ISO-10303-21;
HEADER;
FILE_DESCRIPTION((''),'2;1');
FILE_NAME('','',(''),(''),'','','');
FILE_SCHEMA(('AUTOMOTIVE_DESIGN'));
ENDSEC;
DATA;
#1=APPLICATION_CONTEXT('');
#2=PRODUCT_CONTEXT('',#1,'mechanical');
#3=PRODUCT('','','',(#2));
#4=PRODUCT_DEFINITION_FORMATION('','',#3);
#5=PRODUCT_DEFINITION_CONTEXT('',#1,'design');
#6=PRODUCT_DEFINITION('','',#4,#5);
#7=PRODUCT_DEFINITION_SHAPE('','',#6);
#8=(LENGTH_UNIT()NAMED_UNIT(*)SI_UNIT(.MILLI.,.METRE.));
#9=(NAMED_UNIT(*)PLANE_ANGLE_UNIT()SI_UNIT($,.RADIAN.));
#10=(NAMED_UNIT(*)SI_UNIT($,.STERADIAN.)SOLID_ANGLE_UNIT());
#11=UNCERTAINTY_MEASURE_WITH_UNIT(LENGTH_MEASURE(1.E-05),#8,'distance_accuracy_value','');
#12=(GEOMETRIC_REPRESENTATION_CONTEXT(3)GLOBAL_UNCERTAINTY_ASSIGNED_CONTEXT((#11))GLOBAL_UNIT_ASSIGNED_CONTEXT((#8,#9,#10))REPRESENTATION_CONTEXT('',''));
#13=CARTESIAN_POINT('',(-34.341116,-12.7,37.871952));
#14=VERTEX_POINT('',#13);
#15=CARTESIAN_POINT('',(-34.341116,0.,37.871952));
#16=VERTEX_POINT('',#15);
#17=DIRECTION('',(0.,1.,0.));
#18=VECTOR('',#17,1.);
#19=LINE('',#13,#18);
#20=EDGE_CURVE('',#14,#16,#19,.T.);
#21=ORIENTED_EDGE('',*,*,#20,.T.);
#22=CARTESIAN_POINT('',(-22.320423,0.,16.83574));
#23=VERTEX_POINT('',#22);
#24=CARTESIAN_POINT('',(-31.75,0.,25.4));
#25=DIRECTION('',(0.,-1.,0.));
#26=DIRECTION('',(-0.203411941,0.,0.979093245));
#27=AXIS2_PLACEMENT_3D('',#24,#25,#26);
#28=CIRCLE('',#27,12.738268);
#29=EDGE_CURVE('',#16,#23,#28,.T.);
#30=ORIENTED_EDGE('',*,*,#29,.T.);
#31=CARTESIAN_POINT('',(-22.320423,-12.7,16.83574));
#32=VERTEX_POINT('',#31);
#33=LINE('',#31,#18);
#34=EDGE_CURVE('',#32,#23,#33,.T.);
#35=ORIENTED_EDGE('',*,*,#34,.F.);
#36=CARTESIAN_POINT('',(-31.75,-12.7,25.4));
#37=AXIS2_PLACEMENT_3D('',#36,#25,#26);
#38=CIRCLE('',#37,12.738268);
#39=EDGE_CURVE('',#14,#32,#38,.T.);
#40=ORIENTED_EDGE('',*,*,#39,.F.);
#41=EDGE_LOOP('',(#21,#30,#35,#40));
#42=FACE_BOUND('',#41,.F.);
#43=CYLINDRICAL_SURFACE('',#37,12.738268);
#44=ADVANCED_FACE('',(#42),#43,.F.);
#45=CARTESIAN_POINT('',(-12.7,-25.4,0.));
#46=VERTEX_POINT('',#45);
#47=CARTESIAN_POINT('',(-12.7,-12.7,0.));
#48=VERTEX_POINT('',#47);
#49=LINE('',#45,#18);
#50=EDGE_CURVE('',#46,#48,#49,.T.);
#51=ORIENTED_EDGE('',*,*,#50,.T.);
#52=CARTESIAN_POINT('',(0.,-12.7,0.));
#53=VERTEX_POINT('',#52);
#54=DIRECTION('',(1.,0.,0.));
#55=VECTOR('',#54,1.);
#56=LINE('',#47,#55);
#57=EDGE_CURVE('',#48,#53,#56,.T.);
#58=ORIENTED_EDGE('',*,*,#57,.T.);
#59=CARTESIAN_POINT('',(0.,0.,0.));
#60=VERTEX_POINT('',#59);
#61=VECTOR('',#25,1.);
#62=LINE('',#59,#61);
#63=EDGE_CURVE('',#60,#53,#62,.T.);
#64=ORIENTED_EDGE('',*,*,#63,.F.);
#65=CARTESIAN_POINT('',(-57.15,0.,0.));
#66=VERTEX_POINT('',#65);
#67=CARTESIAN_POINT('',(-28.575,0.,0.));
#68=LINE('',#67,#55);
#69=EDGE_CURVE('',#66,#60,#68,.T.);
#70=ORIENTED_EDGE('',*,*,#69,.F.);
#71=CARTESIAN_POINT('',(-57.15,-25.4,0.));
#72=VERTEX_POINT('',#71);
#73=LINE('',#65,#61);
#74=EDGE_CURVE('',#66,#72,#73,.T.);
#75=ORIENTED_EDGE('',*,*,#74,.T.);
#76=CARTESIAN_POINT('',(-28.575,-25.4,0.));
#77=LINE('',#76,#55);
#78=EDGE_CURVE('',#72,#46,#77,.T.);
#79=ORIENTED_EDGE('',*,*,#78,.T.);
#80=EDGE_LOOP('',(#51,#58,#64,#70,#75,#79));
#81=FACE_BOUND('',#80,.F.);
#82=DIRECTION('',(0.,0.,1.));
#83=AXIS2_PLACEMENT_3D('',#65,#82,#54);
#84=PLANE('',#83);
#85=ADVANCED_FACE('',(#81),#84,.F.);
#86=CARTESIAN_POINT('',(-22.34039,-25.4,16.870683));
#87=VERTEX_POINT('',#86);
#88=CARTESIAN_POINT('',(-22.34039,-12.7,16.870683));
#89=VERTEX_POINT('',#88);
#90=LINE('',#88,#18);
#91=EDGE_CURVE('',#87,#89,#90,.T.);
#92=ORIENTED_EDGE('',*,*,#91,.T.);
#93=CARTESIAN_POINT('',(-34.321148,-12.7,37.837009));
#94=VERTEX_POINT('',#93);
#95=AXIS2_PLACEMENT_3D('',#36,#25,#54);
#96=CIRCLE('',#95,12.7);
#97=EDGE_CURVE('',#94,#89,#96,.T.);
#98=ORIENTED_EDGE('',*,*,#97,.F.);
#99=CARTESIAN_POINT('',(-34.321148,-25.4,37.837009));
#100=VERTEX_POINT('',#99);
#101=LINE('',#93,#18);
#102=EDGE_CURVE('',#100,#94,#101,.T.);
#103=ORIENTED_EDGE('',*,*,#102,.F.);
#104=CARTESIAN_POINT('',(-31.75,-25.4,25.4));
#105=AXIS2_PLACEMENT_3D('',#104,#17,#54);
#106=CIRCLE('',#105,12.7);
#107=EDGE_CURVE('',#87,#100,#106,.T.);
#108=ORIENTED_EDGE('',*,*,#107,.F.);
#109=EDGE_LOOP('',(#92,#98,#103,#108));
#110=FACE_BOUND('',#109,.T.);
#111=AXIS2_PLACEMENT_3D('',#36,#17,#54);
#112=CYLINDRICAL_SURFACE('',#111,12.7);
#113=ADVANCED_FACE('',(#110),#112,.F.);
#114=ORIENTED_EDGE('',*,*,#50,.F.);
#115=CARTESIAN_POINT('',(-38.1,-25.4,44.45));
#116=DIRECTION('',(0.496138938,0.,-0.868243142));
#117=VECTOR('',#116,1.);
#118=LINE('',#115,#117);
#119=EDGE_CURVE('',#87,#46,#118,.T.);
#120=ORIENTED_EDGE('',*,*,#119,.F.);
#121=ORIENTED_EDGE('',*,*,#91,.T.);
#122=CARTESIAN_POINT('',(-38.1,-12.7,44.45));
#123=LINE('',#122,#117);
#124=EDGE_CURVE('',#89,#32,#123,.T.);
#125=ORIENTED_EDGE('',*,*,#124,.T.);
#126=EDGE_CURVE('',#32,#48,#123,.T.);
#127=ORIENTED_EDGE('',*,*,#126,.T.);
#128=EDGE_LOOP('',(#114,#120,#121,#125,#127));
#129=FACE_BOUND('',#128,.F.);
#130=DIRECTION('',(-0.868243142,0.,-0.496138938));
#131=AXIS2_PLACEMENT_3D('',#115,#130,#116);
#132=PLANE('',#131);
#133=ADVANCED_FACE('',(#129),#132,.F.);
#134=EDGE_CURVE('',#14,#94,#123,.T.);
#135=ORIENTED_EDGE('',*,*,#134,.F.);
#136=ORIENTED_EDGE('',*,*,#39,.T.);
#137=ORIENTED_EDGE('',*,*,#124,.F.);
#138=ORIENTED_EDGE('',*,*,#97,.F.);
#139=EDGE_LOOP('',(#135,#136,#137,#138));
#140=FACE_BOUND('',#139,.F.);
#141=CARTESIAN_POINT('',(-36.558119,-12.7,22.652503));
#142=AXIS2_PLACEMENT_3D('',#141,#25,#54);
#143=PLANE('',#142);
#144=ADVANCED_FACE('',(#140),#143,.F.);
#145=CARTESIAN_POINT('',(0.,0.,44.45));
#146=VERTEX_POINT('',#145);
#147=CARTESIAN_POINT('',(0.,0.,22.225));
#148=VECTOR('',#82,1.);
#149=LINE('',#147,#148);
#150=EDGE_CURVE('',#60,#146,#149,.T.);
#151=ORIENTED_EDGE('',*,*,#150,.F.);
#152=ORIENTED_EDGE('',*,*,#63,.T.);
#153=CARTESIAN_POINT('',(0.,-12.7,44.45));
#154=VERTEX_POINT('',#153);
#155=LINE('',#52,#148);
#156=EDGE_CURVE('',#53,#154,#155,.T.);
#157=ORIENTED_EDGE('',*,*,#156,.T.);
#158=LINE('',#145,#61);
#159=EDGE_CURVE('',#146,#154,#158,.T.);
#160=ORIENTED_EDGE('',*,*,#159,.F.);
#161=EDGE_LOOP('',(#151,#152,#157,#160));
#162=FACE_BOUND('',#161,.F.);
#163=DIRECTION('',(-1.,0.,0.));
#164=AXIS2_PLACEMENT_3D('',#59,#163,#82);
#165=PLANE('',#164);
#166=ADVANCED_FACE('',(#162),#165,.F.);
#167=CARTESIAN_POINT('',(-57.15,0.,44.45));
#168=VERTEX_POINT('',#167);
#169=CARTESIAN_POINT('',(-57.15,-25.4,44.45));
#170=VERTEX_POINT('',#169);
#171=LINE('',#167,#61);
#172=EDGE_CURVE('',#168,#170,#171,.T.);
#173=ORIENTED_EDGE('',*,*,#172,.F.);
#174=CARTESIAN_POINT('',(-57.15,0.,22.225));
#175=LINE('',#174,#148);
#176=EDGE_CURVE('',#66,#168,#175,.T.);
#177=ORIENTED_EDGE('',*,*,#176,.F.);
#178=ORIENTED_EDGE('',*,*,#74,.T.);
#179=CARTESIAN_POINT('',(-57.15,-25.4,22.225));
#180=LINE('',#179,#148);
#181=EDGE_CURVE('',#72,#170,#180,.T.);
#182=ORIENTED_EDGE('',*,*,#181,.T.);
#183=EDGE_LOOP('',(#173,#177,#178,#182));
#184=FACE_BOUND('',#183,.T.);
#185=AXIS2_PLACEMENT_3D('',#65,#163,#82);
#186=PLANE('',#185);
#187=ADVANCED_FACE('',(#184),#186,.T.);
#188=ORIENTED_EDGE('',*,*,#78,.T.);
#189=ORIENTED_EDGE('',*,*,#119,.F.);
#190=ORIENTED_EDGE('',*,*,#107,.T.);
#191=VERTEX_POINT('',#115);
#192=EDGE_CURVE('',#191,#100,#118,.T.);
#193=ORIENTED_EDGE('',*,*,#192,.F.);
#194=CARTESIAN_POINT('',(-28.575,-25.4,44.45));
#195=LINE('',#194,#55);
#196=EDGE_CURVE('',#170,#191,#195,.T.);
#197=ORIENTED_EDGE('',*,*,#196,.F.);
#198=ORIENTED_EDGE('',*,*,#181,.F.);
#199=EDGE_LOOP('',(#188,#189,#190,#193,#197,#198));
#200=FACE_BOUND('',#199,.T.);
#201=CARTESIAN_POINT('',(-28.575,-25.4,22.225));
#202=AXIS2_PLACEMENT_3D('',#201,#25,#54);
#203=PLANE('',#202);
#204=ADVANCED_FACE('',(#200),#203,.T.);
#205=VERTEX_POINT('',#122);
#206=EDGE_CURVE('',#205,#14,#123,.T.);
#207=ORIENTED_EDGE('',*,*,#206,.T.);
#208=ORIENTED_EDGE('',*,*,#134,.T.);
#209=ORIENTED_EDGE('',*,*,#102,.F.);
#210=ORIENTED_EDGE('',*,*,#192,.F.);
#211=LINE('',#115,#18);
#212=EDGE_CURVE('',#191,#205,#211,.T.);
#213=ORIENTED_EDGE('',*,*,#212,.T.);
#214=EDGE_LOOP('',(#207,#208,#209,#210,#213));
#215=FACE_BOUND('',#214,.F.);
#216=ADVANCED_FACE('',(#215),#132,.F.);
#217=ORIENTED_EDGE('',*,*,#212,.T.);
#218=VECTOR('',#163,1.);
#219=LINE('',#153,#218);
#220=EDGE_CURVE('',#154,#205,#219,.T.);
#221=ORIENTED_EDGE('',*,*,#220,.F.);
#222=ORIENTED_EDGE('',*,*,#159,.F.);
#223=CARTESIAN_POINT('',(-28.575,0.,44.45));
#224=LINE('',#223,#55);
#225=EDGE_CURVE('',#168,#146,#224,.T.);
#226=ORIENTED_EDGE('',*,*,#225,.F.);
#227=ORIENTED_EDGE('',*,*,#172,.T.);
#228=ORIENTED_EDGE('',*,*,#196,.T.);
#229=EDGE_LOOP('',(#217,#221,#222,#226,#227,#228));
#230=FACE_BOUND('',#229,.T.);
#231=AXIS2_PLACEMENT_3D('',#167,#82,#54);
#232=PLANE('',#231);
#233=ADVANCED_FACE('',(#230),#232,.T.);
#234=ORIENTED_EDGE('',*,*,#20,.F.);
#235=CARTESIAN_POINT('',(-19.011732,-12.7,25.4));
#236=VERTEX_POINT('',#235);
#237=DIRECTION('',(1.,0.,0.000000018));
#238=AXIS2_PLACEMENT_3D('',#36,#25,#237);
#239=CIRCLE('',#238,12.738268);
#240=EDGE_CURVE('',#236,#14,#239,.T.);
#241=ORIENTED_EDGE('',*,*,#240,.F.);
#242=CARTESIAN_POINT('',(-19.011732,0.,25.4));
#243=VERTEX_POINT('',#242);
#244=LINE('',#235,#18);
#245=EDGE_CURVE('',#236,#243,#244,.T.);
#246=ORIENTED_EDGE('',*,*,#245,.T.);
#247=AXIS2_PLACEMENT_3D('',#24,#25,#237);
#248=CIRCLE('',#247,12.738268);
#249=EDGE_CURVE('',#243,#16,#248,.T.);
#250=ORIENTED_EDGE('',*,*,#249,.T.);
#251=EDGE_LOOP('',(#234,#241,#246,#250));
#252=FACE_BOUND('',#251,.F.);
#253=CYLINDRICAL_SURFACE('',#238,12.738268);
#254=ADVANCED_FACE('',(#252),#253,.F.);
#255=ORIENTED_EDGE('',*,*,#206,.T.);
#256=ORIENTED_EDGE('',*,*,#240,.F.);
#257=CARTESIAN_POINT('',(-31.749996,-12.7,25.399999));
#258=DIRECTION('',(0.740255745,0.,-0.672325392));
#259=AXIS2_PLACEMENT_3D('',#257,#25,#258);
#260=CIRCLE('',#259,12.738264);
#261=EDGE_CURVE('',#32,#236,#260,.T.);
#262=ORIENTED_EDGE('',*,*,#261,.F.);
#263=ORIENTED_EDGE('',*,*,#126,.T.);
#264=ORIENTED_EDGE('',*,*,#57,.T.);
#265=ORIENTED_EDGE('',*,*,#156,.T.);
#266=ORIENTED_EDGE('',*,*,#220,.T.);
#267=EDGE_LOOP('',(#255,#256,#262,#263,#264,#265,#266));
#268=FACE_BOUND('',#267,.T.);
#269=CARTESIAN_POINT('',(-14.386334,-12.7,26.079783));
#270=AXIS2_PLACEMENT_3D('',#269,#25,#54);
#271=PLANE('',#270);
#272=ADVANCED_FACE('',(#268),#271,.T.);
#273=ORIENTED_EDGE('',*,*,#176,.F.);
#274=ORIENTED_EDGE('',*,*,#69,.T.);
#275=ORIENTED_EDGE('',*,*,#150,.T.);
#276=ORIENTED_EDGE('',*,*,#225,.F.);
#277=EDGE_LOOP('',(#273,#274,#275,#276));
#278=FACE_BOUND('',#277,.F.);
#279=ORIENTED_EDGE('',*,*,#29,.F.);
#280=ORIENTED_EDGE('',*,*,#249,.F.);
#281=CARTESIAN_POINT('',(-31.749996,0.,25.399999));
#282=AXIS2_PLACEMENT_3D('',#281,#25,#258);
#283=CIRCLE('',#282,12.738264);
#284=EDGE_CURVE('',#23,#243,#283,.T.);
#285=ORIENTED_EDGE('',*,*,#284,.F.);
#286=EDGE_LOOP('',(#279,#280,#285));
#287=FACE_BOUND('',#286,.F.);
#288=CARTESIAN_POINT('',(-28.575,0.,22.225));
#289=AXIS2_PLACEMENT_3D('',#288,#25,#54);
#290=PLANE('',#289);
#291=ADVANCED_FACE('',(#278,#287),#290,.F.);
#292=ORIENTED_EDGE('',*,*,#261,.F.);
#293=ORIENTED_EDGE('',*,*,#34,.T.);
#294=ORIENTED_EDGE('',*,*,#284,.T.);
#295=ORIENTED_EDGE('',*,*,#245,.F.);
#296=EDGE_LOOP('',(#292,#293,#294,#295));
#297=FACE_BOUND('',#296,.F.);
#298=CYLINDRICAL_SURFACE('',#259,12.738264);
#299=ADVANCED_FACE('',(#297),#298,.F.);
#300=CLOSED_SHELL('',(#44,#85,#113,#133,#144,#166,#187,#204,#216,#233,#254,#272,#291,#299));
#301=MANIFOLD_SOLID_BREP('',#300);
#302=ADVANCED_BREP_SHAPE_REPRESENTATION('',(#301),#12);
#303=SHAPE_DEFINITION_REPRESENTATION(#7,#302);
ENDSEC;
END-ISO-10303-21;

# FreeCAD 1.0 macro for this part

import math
import FreeCAD as App
import Part
import Sketcher

V = App.Vector
Q = App.Units.Quantity


def add_polygon(sketch, points):
    """Adds a closed chain of lines whose ends are joined by coincident constraints."""
    first, n = sketch.GeometryCount, len(points)
    for a, b in zip(points, points[1:] + points[:1]):
        sketch.addGeometry(Part.LineSegment(App.Vector(*a, 0), App.Vector(*b, 0)), False)
    for i in range(n):
        sketch.addConstraint(Sketcher.Constraint("Coincident", first + i, 2, first + (i + 1) % n, 1))

doc = App.newDocument("Part")
body = doc.addObject("PartDesign::Body", "Body")

# Sketch on XZ plane
sketch1 = body.newObject("Sketcher::SketchObject", "Sketch")
sketch1.AttachmentSupport = (doc.getObject("XZ_Plane"), [""])
sketch1.MapMode = "FlatFace"
add_polygon(sketch1, [(-57, 44), (-57, 0), (0, 0), (0, 44)])  # lines 0-3
sketch1.addConstraint(Sketcher.Constraint("Vertical", 0))
sketch1.addConstraint(Sketcher.Constraint("Horizontal", 1))
sketch1.addConstraint(Sketcher.Constraint("Vertical", 2))
sketch1.addConstraint(Sketcher.Constraint("Horizontal", 3))
sketch1.addConstraint(Sketcher.Constraint("Coincident", 1, 2, -1, 1))
sketch1.addConstraint(Sketcher.Constraint("DistanceX", 1, 1, 1, 2, Q("2.25 in")))
sketch1.addConstraint(Sketcher.Constraint("DistanceY", 0, 2, 0, 1, Q("1.75 in")))
pad1 = body.newObject("PartDesign::Pad", "Pad")
pad1.Profile = sketch1
pad1.Length = Q("1 in")

# Sketch on XZ plane
sketch2 = body.newObject("Sketcher::SketchObject", "Sketch001")
sketch2.AttachmentSupport = (doc.getObject("XZ_Plane"), [""])
sketch2.MapMode = "FlatFace"
sketch2.AttachmentOffset = App.Placement(V(0, 0, 1 * 25.4), App.Rotation())
add_polygon(sketch2, [(0, 44), (-38, 44), (-13, 0), (0, 0)])  # lines 0-3
sketch2.addConstraint(Sketcher.Constraint("Horizontal", 0))
sketch2.addConstraint(Sketcher.Constraint("Horizontal", 2))
sketch2.addConstraint(Sketcher.Constraint("Vertical", 3))
sketch2.addConstraint(Sketcher.Constraint("Coincident", 2, 2, -1, 1))
sketch2.addConstraint(Sketcher.Constraint("DistanceX", 0, 2, 0, 1, Q("1.5 in")))
sketch2.addConstraint(Sketcher.Constraint("DistanceX", 2, 1, 2, 2, Q("0.5 in")))
sketch2.addConstraint(Sketcher.Constraint("DistanceY", 3, 1, 3, 2, Q("1.75 in")))
pocket1 = body.newObject("PartDesign::Pocket", "Pocket")
pocket1.Profile = sketch2
pocket1.Length = Q("0.5 in")

# Sketch on XZ plane
sketch3 = body.newObject("Sketcher::SketchObject", "Sketch002")
sketch3.AttachmentSupport = (doc.getObject("XZ_Plane"), [""])
sketch3.MapMode = "FlatFace"
sketch3.AttachmentOffset = App.Placement(V(0, 0, 0.5 * 25.4), App.Rotation())
sketch3.addGeometry(Part.Circle(V(-32, 25, 0), V(0, 0, 1), 13), False)
sketch3.addConstraint(Sketcher.Constraint("Diameter", 0, Q("1 in")))
sketch3.addConstraint(Sketcher.Constraint("DistanceY", -1, 1, 0, 3, Q("1 in")))
sketch3.addConstraint(Sketcher.Constraint("DistanceX", 0, 3, -1, 1, Q("1.25 in")))
pocket2 = body.newObject("PartDesign::Pocket", "Pocket001")
pocket2.Profile = sketch3
pocket2.Type = "ThroughAll"
pocket2.Reversed = True

# Sketch on XZ plane
sketch4 = body.newObject("Sketcher::SketchObject", "Sketch003")
sketch4.AttachmentSupport = (doc.getObject("XZ_Plane"), [""])
sketch4.MapMode = "FlatFace"
sketch4.AttachmentOffset = App.Placement(V(0, 0, 0.5 * 25.4), App.Rotation())
sketch4.addGeometry(Part.ArcOfCircle(Part.Circle(V(-32, 25, 0), V(0, 0, 1), 13), math.radians(102), math.radians(318)), False)
sketch4.addGeometry(Part.ArcOfCircle(Part.Circle(V(-32, 25, 0), V(0, 0, 1), 13), math.radians(-42), math.radians(0)), False)
sketch4.addGeometry(Part.ArcOfCircle(Part.Circle(V(-32, 25, 0), V(0, 0, 1), 13), math.radians(0), math.radians(102)), False)
sketch4.addConstraint(Sketcher.Constraint("Tangent", 0, 2, 1, 1))
sketch4.addConstraint(Sketcher.Constraint("Tangent", 1, 2, 2, 1))
sketch4.addConstraint(Sketcher.Constraint("Tangent", 2, 2, 0, 1))
sketch4.addConstraint(Sketcher.Constraint("Horizontal", 2, 3, 1, 2))
sketch4.addConstraint(Sketcher.Constraint("DistanceY", -1, 1, 0, 3, Q("1 in")))
sketch4.addConstraint(Sketcher.Constraint("DistanceX", 0, 3, -1, 1, Q("1.25 in")))
sketch4.addConstraint(Sketcher.Constraint("Radius", 0, 12.738268))
sketch4.addConstraint(Sketcher.Constraint("DistanceY", -1, 1, 0, 2, 16.83574))
sketch4.addConstraint(Sketcher.Constraint("DistanceX", 2, 2, 1, 3, 2.59112))
pocket3 = body.newObject("PartDesign::Pocket", "Pocket002")
pocket3.Profile = sketch4
pocket3.Length = Q("1 in")

doc.recompute()
